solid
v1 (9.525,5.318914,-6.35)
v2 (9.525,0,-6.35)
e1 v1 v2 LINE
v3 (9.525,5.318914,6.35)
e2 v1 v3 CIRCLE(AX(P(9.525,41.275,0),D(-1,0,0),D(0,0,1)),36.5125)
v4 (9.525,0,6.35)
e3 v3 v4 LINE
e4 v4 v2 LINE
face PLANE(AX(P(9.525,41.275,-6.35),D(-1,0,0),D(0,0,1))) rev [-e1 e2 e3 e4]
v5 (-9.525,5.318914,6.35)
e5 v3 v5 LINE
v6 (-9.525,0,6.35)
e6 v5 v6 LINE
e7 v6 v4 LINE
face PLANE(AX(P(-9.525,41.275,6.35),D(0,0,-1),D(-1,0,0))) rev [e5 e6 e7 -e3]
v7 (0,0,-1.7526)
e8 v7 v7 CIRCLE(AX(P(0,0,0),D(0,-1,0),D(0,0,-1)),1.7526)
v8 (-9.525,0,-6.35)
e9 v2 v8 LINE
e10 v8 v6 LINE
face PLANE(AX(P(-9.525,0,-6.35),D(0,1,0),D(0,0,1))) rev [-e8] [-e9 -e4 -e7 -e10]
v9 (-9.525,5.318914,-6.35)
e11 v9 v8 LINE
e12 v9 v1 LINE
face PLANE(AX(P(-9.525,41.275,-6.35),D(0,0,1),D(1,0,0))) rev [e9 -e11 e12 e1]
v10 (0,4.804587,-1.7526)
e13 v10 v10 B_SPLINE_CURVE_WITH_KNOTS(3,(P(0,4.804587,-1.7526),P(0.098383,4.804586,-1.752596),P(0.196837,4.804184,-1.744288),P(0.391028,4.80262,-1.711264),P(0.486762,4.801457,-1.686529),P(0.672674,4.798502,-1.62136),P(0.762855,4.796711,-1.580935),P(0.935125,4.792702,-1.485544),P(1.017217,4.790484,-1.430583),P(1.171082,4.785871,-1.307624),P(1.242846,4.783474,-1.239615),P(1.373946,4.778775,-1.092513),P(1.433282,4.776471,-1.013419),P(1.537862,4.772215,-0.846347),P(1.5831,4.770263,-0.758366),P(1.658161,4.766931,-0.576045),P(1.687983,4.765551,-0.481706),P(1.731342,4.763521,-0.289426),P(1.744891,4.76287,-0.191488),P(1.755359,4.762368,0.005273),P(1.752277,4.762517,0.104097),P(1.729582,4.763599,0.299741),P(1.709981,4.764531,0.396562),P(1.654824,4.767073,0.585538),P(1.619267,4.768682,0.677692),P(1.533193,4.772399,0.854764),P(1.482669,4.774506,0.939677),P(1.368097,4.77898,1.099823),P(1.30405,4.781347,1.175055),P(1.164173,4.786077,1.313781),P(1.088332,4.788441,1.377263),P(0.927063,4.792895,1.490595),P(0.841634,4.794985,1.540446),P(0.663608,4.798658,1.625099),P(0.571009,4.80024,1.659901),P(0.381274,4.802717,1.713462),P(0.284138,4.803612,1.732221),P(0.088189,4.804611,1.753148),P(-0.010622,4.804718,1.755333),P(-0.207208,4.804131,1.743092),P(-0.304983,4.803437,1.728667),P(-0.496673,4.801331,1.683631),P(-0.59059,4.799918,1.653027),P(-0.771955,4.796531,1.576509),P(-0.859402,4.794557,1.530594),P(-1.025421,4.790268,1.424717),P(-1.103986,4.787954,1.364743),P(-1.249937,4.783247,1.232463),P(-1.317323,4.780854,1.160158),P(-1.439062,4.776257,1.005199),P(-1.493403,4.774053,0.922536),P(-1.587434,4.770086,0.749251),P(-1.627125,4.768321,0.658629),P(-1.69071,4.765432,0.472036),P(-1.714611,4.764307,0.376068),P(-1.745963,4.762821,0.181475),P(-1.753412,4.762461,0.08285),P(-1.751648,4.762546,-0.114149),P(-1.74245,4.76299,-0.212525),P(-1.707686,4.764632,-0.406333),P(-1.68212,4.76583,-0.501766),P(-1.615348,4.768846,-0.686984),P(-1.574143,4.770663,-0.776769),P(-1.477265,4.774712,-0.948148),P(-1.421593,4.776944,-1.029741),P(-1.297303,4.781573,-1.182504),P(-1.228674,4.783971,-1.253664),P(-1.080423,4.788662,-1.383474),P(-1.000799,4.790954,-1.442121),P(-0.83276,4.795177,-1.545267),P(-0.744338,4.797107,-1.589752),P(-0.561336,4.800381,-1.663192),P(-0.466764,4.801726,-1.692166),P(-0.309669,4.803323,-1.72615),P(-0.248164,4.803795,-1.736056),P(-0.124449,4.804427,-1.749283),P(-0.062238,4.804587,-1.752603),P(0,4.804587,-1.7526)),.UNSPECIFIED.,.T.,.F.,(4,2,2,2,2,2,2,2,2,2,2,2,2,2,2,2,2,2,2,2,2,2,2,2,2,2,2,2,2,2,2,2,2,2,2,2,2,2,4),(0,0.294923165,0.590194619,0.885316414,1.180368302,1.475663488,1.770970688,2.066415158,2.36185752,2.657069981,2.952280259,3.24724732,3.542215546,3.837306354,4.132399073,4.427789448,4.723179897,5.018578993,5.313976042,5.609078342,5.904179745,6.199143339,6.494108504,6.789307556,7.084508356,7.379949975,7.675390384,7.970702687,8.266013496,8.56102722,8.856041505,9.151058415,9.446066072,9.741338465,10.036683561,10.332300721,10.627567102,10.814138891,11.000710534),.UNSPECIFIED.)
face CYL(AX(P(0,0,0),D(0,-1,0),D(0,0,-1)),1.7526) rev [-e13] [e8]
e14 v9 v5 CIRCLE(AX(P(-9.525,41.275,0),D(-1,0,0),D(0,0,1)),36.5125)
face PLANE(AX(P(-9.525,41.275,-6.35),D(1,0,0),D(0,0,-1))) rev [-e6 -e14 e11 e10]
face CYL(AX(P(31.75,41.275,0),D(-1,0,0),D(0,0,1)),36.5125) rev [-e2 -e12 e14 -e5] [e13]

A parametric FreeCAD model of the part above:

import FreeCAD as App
import Part
import Sketcher
Q = App.Units.Quantity


def add_polygon(sketch, points):
    """Adds a closed chain of lines whose ends are joined by coincident constraints."""
    first, n = sketch.GeometryCount, len(points)
    for a, b in zip(points, points[1:] + points[:1]):
        sketch.addGeometry(Part.LineSegment(App.Vector(*a, 0), App.Vector(*b, 0)), False)
    for i in range(n):
        sketch.addConstraint(Sketcher.Constraint("Coincident", first + i, 2, first + (i + 1) % n, 1))

doc = App.newDocument("Part")
body = doc.addObject("PartDesign::Body", "Body")

# Sketch on XZ plane
sketch1 = doc.addObject("Sketcher::SketchObject", "Sketch")
body.addObject(sketch1)
sketch1.AttachmentSupport = (doc.XZ_Plane, [""])
sketch1.MapMode = "FlatFace"
add_polygon(sketch1, [(-9.525, -6.35), (-9.525, 6.35), (9.525, 6.35), (9.525, -6.35)])  # lines 0-3
sketch1.addConstraint([
    Sketcher.Constraint("Vertical", 0),
    Sketcher.Constraint("Horizontal", 1),
    Sketcher.Constraint("Vertical", 2),
    Sketcher.Constraint("Horizontal", 3),
    Sketcher.Constraint("Symmetric", 0, 2, 2, 2, -1, 1),
    Sketcher.Constraint("DistanceY", 0, 1, 0, 2, Q("0.5 in")),
    Sketcher.Constraint("DistanceX", 1, 1, 1, 2, Q("0.75 in")),
])
pad1 = doc.addObject("PartDesign::Pad", "Pad")
body.addObject(pad1)
pad1.Profile = sketch1
pad1.Length = Q("1.625 in")
pad1.Reversed = True

# Sketch on YZ plane
sketch2 = doc.addObject("Sketcher::SketchObject", "Sketch001")
body.addObject(sketch2)
sketch2.AttachmentSupport = (doc.YZ_Plane, [""])
sketch2.MapMode = "FlatFace"
sketch2.AttachmentOffset = App.Placement(App.Vector(0, 0, -0.375 * 25.4), App.Rotation())
sketch2.addGeometry(Part.Circle(App.Vector(41.275, 0, 0), App.Vector(0, 0, 1), 36.5125), False)
sketch2.addConstraint([
    Sketcher.Constraint("PointOnObject", 0, 3, -1),
    Sketcher.Constraint("Diameter", 0, Q("2.875 in")),
    Sketcher.Constraint("DistanceX", -1, 1, 0, 3, Q("1.625 in")),
])
pocket1 = doc.addObject("PartDesign::Pocket", "Pocket")
body.addObject(pocket1)
pocket1.Profile = sketch2
pocket1.Length = Q("1.625 in")
pocket1.Reversed = True

# Sketch on XZ plane
sketch3 = doc.addObject("Sketcher::SketchObject", "Sketch002")
body.addObject(sketch3)
sketch3.AttachmentSupport = (doc.XZ_Plane, [""])
sketch3.MapMode = "FlatFace"
sketch3.addGeometry(Part.Circle(App.Vector(0, 0, 0), App.Vector(0, 0, 1), 1.35255), False)
sketch3.addConstraint([
    Sketcher.Constraint("Coincident", 0, 3, -1, 1),
    Sketcher.Constraint("Diameter", 0, Q("0.1065 in")),
])
doc.recompute()
hole = doc.addObject("PartDesign::Hole", "Hole")
body.addObject(hole)
hole.Profile = sketch3
hole.ThreadType = "None"
hole.Diameter = Q("0.1065 in")
hole.DepthType = "Dimension"
hole.Depth = Q("0.37 in")
hole.DrillPoint = "Angled"
hole.DrillPointAngle = 118
hole.HoleCutType = "Counterbore"
hole.HoleCutDiameter = Q("0.138 in")
hole.HoleCutDepth = Q("0.28 in")

doc.recompute()
